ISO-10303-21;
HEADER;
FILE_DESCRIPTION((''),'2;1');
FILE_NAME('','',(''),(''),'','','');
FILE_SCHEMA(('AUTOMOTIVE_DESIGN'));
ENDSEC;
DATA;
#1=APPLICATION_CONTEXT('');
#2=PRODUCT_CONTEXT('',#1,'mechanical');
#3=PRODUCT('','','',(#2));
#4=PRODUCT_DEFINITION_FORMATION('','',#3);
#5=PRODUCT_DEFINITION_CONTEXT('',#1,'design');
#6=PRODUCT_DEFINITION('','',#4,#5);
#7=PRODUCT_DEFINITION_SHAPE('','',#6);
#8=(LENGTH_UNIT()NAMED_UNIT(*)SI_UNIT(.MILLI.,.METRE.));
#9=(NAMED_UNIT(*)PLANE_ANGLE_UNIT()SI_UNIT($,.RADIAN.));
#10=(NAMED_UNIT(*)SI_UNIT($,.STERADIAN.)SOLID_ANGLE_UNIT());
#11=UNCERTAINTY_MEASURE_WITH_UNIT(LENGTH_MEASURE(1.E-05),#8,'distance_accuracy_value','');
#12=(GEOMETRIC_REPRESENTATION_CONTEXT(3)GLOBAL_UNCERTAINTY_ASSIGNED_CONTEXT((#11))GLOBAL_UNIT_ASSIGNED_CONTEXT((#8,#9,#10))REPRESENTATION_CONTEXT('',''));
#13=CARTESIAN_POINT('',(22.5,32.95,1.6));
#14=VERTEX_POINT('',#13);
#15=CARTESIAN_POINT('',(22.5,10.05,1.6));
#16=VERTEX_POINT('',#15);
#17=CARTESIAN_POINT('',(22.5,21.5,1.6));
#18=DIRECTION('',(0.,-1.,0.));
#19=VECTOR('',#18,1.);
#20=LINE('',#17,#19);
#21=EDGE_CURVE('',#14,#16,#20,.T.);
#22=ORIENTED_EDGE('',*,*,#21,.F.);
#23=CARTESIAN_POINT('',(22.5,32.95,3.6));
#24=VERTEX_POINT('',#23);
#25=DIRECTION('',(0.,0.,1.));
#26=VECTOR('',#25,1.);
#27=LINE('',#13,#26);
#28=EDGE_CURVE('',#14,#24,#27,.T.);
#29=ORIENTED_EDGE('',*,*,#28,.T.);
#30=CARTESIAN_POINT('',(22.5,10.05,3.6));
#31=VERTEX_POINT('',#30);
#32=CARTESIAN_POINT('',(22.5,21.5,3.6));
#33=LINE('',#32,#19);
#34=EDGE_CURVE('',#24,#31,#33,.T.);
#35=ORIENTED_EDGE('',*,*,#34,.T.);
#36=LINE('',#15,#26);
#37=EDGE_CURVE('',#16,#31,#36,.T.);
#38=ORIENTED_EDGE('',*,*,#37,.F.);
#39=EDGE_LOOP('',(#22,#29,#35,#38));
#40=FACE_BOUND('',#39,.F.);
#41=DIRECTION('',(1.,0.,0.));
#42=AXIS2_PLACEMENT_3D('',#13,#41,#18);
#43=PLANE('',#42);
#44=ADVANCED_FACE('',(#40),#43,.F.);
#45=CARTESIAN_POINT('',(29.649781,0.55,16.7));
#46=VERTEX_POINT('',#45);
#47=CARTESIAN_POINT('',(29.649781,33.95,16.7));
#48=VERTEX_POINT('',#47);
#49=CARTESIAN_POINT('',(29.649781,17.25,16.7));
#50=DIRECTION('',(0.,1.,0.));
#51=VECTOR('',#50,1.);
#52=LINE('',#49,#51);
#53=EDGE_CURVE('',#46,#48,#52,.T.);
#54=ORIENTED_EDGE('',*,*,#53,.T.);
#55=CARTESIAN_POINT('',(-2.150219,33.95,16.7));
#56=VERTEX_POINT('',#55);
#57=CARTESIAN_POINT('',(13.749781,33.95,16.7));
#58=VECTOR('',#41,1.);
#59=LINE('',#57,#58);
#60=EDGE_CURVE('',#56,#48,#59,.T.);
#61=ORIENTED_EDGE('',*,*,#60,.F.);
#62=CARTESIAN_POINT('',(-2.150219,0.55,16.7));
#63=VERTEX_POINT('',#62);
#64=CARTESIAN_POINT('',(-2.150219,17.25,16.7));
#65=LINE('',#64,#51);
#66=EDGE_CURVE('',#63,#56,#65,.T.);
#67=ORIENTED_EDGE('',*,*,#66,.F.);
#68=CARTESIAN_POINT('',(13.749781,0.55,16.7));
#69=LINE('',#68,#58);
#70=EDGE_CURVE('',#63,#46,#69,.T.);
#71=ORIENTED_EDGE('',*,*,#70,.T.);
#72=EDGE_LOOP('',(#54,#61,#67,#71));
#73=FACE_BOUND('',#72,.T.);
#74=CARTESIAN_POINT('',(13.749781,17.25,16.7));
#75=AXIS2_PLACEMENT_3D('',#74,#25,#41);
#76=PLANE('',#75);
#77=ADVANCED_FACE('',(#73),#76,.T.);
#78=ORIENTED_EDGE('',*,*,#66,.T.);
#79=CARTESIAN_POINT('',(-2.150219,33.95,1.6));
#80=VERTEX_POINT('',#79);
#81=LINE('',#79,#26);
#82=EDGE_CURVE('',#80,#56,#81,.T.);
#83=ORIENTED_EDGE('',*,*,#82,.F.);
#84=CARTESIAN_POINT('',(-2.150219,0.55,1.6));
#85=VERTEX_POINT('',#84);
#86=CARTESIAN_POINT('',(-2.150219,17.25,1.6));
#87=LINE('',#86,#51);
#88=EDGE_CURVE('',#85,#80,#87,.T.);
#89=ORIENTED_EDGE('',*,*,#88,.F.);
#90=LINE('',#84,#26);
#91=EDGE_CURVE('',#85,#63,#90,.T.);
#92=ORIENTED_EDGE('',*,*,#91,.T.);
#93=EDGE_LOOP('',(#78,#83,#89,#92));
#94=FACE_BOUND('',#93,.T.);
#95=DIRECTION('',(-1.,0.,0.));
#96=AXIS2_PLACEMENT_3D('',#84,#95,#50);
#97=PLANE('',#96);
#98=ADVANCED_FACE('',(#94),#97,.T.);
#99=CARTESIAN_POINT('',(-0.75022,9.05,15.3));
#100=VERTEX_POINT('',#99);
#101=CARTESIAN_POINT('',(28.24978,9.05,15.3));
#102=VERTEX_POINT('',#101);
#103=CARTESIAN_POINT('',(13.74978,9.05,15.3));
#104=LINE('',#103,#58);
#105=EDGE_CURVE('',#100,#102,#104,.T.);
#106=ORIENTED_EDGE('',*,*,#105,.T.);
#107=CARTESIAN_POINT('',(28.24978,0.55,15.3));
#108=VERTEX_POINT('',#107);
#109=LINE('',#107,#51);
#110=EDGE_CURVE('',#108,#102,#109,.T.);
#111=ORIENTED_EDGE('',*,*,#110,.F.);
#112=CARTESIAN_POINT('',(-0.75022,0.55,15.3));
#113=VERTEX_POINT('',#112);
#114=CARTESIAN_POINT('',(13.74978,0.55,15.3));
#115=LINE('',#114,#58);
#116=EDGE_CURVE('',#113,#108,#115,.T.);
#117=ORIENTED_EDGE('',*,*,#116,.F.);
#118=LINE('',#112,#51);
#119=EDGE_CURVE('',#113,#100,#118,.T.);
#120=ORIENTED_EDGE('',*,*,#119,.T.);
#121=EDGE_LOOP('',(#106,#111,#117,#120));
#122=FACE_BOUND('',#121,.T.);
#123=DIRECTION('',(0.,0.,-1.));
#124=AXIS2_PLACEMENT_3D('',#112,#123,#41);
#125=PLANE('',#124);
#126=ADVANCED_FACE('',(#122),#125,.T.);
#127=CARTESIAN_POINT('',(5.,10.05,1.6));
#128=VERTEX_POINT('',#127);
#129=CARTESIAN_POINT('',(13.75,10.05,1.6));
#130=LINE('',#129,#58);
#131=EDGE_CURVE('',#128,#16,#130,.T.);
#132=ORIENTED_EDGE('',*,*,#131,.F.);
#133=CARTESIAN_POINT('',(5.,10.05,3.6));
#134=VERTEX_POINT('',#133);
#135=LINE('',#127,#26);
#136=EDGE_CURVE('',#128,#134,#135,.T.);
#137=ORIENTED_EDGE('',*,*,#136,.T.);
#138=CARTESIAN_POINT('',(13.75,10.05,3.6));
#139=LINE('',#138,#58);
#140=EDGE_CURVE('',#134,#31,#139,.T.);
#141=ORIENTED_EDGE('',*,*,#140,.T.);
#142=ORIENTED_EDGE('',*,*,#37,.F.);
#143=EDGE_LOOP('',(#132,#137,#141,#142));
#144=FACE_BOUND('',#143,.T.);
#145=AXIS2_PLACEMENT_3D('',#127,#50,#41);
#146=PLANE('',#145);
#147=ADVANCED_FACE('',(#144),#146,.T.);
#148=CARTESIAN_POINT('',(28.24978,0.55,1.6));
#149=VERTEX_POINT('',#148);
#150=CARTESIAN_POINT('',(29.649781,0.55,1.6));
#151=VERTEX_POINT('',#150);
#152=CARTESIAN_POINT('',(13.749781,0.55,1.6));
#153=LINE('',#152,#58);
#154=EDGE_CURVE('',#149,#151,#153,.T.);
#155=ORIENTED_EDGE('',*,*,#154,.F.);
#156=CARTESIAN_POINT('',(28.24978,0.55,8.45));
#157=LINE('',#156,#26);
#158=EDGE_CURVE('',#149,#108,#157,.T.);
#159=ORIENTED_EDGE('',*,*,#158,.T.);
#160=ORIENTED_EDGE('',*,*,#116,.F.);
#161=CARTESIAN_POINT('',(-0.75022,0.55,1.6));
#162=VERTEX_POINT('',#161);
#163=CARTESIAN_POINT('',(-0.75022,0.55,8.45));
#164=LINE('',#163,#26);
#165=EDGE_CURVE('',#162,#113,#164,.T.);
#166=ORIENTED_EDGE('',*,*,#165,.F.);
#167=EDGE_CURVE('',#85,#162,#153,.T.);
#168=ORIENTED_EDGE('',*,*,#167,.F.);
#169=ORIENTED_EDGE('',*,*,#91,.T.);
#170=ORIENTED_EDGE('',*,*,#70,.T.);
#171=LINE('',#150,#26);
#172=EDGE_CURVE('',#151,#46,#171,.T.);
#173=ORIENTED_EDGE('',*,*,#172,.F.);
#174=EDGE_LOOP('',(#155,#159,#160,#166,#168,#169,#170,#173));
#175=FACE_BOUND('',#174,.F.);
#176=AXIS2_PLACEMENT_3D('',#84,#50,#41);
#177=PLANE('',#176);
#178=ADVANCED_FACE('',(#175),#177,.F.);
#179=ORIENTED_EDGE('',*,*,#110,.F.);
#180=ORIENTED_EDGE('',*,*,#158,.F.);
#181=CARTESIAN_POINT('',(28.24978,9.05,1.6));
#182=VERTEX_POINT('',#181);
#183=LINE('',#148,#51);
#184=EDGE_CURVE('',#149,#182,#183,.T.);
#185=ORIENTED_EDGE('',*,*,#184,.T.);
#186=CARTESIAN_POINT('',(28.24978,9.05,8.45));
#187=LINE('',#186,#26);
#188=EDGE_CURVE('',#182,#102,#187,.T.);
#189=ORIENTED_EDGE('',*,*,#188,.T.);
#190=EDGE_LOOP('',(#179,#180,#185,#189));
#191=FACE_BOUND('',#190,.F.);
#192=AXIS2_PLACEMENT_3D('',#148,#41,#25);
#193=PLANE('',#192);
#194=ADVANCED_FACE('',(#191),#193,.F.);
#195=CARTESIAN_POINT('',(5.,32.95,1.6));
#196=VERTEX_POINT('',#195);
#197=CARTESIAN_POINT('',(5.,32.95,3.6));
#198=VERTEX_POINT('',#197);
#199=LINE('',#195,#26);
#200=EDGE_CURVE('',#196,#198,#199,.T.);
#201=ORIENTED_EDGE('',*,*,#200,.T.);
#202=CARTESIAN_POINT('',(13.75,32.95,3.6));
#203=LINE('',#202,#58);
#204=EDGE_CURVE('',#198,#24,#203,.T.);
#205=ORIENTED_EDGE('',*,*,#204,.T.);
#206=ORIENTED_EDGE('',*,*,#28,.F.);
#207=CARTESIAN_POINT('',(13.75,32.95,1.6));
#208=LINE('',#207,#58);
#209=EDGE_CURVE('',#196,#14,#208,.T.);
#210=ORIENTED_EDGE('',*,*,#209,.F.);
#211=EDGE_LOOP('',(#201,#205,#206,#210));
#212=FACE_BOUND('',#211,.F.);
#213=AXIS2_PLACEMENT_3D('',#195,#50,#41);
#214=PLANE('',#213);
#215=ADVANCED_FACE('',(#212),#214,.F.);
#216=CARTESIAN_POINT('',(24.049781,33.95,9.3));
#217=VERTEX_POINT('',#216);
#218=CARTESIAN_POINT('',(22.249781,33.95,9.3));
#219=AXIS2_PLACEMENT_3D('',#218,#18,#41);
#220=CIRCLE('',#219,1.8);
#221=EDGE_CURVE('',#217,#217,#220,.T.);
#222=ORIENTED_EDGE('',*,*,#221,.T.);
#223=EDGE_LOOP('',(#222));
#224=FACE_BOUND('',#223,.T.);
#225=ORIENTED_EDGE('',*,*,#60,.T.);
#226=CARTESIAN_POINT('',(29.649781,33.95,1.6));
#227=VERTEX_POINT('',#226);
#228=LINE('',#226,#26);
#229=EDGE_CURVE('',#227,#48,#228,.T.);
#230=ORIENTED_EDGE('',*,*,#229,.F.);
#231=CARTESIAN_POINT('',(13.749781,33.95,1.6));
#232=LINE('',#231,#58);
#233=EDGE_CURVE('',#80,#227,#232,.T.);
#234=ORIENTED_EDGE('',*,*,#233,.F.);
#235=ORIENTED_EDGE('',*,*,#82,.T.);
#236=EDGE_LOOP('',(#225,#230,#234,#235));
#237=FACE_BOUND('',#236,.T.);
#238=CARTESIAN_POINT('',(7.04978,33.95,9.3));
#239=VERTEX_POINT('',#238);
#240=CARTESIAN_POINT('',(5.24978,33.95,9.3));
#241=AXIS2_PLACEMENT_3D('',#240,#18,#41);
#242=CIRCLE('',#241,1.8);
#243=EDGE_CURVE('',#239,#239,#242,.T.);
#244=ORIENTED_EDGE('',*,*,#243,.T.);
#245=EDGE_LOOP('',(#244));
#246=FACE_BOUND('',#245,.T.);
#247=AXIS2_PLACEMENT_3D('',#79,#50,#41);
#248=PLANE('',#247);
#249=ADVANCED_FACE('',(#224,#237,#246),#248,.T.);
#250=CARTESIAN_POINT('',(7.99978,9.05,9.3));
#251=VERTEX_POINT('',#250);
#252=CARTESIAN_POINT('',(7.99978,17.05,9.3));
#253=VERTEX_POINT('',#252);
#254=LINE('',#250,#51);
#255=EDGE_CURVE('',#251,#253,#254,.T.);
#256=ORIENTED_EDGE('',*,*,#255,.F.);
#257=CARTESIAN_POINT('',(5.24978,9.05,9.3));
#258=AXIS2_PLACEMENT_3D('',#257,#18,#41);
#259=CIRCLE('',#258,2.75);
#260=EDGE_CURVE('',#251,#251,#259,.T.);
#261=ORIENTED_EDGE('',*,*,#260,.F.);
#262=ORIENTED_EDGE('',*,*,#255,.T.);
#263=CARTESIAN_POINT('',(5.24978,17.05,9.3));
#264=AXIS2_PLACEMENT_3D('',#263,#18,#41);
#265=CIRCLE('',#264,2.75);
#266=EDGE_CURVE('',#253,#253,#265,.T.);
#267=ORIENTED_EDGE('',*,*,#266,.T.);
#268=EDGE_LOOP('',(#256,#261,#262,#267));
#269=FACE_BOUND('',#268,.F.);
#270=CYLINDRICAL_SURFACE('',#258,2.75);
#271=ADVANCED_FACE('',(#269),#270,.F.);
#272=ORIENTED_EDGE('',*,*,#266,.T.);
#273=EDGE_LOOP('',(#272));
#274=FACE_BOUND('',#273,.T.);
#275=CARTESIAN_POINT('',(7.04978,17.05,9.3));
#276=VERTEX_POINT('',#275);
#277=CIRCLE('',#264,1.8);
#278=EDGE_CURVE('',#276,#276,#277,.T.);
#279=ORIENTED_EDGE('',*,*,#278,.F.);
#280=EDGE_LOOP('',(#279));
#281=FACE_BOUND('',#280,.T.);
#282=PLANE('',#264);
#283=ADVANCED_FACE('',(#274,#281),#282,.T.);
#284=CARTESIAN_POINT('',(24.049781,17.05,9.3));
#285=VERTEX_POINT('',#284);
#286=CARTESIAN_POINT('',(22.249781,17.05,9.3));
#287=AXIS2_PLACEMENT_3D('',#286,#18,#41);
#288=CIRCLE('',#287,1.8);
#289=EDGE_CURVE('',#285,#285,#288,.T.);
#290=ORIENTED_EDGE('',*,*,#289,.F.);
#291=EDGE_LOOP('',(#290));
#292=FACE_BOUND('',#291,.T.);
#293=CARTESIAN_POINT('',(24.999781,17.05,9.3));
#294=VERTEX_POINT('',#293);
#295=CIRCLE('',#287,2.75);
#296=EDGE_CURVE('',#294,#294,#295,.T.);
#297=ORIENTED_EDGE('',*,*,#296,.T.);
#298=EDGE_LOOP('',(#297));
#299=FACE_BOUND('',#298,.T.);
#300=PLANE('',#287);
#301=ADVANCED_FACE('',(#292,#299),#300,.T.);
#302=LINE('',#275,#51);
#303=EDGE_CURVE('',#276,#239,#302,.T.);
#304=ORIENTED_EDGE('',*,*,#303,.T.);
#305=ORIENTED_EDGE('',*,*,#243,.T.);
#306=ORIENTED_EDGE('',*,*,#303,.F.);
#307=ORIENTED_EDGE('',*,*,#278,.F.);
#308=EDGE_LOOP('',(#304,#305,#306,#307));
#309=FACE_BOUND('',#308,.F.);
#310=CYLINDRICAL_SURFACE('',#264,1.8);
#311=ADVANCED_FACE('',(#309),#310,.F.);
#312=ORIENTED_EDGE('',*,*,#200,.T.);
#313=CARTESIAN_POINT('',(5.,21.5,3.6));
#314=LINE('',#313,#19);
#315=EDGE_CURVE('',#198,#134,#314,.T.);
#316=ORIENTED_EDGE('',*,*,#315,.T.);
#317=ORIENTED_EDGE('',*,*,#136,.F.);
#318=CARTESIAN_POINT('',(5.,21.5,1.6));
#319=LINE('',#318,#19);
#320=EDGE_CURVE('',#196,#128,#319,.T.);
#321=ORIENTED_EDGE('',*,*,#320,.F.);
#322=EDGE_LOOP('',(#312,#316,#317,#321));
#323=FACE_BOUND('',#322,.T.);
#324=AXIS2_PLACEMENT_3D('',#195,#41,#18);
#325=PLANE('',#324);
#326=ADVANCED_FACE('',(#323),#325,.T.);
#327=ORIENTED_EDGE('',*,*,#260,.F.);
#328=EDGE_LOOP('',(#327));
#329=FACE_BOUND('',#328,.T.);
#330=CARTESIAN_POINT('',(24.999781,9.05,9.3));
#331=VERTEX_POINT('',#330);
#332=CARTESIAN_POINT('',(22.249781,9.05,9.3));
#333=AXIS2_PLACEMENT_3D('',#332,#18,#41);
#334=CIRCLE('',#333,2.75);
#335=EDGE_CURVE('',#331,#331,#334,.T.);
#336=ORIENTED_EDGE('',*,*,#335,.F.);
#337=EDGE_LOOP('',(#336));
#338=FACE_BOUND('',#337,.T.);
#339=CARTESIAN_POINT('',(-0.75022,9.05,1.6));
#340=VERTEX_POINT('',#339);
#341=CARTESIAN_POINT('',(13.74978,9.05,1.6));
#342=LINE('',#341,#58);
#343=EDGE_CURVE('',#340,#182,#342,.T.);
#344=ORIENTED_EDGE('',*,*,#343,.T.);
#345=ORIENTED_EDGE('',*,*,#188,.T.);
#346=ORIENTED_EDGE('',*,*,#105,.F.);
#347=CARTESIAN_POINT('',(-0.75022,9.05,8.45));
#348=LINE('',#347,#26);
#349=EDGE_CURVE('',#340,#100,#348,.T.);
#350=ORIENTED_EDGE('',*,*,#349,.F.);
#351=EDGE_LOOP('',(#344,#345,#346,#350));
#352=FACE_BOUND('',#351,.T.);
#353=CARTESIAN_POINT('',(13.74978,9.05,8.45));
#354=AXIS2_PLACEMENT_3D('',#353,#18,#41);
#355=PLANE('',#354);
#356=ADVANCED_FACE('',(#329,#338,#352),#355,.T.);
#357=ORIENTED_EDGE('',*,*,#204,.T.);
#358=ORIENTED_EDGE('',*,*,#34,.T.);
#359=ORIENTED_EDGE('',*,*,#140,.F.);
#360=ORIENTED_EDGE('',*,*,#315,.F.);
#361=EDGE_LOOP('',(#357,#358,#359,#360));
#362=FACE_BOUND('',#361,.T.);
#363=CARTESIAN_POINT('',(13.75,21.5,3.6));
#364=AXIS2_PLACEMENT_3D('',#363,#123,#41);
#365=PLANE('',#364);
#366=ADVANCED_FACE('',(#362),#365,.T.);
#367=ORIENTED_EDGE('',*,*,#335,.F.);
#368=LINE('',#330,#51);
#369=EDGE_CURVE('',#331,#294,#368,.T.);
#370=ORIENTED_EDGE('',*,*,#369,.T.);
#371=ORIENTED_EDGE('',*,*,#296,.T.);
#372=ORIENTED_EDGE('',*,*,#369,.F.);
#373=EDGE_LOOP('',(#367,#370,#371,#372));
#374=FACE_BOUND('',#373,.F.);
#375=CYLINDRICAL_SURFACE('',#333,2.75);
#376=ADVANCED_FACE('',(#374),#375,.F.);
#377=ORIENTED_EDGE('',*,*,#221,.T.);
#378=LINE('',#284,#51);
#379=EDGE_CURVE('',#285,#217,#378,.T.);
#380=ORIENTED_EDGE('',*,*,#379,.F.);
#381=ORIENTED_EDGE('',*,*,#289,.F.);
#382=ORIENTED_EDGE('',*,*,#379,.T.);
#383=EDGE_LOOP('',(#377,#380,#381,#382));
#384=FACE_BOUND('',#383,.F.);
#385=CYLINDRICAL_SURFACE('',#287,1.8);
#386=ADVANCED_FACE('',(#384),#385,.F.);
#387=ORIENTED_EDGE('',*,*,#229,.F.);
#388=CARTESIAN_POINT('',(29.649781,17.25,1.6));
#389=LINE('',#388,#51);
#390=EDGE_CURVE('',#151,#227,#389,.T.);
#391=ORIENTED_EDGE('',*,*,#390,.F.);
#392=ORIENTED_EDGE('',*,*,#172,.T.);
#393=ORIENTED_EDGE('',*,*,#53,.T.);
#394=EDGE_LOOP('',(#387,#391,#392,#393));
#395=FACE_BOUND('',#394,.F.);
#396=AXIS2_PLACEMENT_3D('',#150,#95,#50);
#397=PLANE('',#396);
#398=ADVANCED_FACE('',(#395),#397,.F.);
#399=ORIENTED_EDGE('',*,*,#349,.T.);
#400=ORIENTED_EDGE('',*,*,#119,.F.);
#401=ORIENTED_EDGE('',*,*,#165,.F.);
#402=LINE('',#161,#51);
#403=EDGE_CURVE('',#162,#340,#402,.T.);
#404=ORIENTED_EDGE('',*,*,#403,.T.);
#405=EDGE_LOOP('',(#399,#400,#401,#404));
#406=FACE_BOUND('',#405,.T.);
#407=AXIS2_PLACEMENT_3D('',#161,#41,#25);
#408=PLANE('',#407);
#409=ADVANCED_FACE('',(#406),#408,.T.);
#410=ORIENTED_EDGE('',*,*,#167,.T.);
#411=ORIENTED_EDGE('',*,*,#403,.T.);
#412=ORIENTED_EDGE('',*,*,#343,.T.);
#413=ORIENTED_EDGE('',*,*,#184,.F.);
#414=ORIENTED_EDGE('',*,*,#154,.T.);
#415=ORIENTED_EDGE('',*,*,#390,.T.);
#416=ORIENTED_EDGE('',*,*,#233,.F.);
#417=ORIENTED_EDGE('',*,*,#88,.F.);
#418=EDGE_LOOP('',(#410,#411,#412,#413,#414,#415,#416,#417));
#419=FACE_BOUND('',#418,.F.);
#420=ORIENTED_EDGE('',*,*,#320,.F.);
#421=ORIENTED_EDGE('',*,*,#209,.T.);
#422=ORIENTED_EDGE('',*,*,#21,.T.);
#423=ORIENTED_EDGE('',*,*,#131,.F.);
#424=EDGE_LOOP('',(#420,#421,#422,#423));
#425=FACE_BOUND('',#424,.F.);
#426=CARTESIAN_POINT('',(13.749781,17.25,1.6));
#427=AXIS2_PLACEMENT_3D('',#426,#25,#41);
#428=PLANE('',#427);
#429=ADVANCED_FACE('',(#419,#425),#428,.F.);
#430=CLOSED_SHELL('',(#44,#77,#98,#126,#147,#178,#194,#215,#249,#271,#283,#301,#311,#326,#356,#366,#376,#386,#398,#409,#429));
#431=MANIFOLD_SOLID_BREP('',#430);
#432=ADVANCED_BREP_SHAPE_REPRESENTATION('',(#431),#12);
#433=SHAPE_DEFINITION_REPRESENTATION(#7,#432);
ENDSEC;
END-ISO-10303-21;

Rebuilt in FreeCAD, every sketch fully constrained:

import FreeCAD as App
import Part
import Sketcher

V = App.Vector
Q = App.Units.Quantity


def add_polygon(sketch, points):
    """Adds a closed chain of lines whose ends are joined by coincident constraints."""
    first, n = sketch.GeometryCount, len(points)
    for a, b in zip(points, points[1:] + points[:1]):
        sketch.addGeometry(Part.LineSegment(App.Vector(*a, 0), App.Vector(*b, 0)), False)
    for i in range(n):
        sketch.addConstraint(Sketcher.Constraint("Coincident", first + i, 2, first + (i + 1) % n, 1))

doc = App.newDocument("Part")
body = doc.addObject("PartDesign::Body", "Body")

sketch1 = body.newObject("Sketcher::SketchObject", "Sketch")
sketch1.AttachmentSupport = (doc.getObject("XY_Plane"), [""])
sketch1.MapMode = "FlatFace"
sketch1.AttachmentOffset = App.Placement(V(0, 0, 1.6), App.Rotation())
add_polygon(sketch1, [(-2.150219, 33.95), (-2.150219, 0.55), (29.649781, 0.55), (29.649781, 33.95)])
sketch1.addConstraint([
    Sketcher.Constraint("Vertical", 0),
    Sketcher.Constraint("Horizontal", 1),
    Sketcher.Constraint("Vertical", 2),
    Sketcher.Constraint("Horizontal", 3),
    Sketcher.Constraint("DistanceX", 1, 1, 1, 2, Q("31.8 mm")),
    Sketcher.Constraint("DistanceY", 0, 2, 0, 1, Q("33.4 mm")),
    Sketcher.Constraint("DistanceY", -1, 1, 0, 2, Q("0.55 mm")),
    Sketcher.Constraint("DistanceX", 0, 2, -1, 1, Q("2.150219 mm")),
])
pad1 = body.newObject("PartDesign::Pad", "Pad")
pad1.Profile = sketch1
pad1.Length = 15.1

sketch2 = body.newObject("Sketcher::SketchObject", "Sketch001")
sketch2.AttachmentSupport = (doc.getObject("XZ_Plane"), [""])
sketch2.MapMode = "FlatFace"
sketch2.AttachmentOffset = App.Placement(V(0, 0, -0.55), App.Rotation())
add_polygon(sketch2, [(-0.75022, 15.3), (-0.75022, 1.6), (28.24978, 1.6), (28.24978, 15.3)])
sketch2.addConstraint([
    Sketcher.Constraint("Vertical", 0),
    Sketcher.Constraint("Horizontal", 1),
    Sketcher.Constraint("Vertical", 2),
    Sketcher.Constraint("Horizontal", 3),
    Sketcher.Constraint("DistanceX", 1, 1, 1, 2, Q("29.000001 mm")),
    Sketcher.Constraint("DistanceY", 0, 2, 0, 1, Q("13.7 mm")),
    Sketcher.Constraint("DistanceY", -1, 1, 0, 2, Q("1.6 mm")),
    Sketcher.Constraint("DistanceX", 0, 2, -1, 1, Q("0.75022 mm")),
])
pocket1 = body.newObject("PartDesign::Pocket", "Pocket")
pocket1.Profile = sketch2
pocket1.Length = 8.5

sketch3 = body.newObject("Sketcher::SketchObject", "Sketch002")
sketch3.AttachmentSupport = (doc.getObject("XY_Plane"), [""])
sketch3.MapMode = "FlatFace"
sketch3.AttachmentOffset = App.Placement(V(0, 0, 1.6), App.Rotation())
add_polygon(sketch3, [(5, 10.05), (5, 32.95), (22.5, 32.95), (22.5, 10.05)])
sketch3.addConstraint([
    Sketcher.Constraint("Vertical", 0),
    Sketcher.Constraint("Horizontal", 1),
    Sketcher.Constraint("Vertical", 2),
    Sketcher.Constraint("Horizontal", 3),
    Sketcher.Constraint("DistanceX", 1, 1, 1, 2, Q("17.5 mm")),
    Sketcher.Constraint("DistanceY", 0, 1, 0, 2, Q("22.9 mm")),
    Sketcher.Constraint("DistanceX", -1, 1, 0, 2, Q("5 mm")),
    Sketcher.Constraint("DistanceY", -1, 1, 0, 2, Q("32.95 mm")),
])
pocket2 = body.newObject("PartDesign::Pocket", "Pocket001")
pocket2.Profile = sketch3
pocket2.Length = 2
pocket2.Reversed = True

sketch4 = body.newObject("Sketcher::SketchObject", "Sketch003")
sketch4.AttachmentSupport = (doc.getObject("XZ_Plane"), [""])
sketch4.MapMode = "FlatFace"
sketch4.AttachmentOffset = App.Placement(V(0, 0, -9.05), App.Rotation())
sketch4.addGeometry([
    Part.Circle(V(5.24978, 9.3, 0), V(0, 0, 1), 2.75),
    Part.Circle(V(22.249781, 9.3, 0), V(0, 0, 1), 2.75),
], False)
sketch4.addConstraint([
    Sketcher.Constraint("Equal", 0, 1),
    Sketcher.Constraint("Horizontal", 0, 3, 1, 3),
    Sketcher.Constraint("Diameter", 0, Q("5.5 mm")),
    Sketcher.Constraint("DistanceX", 0, 3, 1, 3, Q("17.000001 mm")),
    Sketcher.Constraint("DistanceY", -1, 1, 0, 3, Q("9.3 mm")),
    Sketcher.Constraint("DistanceX", -1, 1, 0, 3, Q("5.24978 mm")),
])
pocket3 = body.newObject("PartDesign::Pocket", "Pocket002")
pocket3.Profile = sketch4
pocket3.Length = 8

sketch5 = body.newObject("Sketcher::SketchObject", "Sketch004")
sketch5.AttachmentSupport = (doc.getObject("XZ_Plane"), [""])
sketch5.MapMode = "FlatFace"
sketch5.AttachmentOffset = App.Placement(V(0, 0, -17.05), App.Rotation())
sketch5.addGeometry([
    Part.Circle(V(5.24978, 9.3, 0), V(0, 0, 1), 1.8),
    Part.Circle(V(22.249781, 9.3, 0), V(0, 0, 1), 1.8),
], False)
sketch5.addConstraint([
    Sketcher.Constraint("Equal", 0, 1),
    Sketcher.Constraint("Horizontal", 0, 3, 1, 3),
    Sketcher.Constraint("Diameter", 0, Q("3.6 mm")),
    Sketcher.Constraint("DistanceX", 0, 3, 1, 3, Q("17.000001 mm")),
    Sketcher.Constraint("DistanceY", -1, 1, 0, 3, Q("9.3 mm")),
    Sketcher.Constraint("DistanceX", -1, 1, 0, 3, Q("5.24978 mm")),
])
pocket4 = body.newObject("PartDesign::Pocket", "Pocket003")
pocket4.Profile = sketch5
pocket4.Length = 20

doc.recompute()
